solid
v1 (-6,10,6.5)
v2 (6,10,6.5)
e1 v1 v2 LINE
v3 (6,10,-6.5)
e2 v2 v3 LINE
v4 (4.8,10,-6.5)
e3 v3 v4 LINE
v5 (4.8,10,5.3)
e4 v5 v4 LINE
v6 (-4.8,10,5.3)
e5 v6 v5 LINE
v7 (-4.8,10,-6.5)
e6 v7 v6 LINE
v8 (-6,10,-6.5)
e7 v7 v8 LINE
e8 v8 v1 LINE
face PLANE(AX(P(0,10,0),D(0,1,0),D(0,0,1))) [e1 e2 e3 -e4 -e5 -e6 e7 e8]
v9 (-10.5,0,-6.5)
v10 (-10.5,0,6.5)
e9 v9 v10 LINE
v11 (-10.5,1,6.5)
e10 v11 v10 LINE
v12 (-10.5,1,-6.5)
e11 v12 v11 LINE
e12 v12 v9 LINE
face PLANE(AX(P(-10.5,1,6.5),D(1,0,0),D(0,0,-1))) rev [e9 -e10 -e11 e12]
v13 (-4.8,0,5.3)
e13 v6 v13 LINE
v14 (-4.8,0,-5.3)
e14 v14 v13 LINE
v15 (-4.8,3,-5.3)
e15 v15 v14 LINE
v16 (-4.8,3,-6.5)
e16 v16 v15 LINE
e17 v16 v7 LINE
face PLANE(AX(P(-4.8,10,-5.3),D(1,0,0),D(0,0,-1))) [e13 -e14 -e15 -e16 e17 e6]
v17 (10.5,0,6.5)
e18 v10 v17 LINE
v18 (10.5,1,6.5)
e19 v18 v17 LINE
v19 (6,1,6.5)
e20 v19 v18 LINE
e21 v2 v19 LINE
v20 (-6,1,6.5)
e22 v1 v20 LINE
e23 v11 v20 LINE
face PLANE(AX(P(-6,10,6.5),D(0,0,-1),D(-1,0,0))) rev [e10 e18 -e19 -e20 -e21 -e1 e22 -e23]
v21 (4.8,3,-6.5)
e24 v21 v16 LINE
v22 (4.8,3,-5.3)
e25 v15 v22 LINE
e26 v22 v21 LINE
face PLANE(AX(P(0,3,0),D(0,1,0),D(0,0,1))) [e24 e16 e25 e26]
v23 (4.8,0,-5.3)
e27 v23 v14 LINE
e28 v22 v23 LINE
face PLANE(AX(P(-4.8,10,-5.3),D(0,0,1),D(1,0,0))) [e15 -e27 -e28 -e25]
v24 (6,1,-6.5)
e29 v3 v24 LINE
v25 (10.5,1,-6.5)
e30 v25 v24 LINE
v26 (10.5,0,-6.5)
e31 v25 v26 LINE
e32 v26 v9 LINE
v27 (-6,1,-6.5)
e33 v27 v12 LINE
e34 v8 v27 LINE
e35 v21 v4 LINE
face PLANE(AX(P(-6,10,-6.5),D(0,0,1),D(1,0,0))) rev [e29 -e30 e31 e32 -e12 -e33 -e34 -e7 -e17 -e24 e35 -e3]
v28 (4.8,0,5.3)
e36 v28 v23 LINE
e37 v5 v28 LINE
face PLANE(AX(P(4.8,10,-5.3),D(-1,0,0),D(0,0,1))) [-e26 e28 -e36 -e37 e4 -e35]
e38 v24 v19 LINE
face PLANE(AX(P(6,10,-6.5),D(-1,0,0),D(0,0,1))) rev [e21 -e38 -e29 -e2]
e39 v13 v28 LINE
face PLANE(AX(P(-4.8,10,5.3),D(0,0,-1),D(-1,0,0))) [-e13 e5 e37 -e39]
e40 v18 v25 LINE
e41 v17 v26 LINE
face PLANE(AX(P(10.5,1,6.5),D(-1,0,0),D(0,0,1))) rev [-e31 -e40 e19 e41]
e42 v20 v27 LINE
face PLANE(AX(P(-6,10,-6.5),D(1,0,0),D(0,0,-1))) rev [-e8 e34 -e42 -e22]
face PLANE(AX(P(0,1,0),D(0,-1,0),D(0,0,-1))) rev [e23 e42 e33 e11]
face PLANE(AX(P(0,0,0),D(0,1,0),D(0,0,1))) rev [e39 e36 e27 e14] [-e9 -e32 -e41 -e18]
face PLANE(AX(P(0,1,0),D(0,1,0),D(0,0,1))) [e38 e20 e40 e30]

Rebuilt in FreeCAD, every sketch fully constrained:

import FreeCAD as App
import Part
import Sketcher
from FreeCAD import Vector
Q = App.Units.Quantity


def add_polygon(sketch, points):
    """Adds a closed chain of lines whose ends are joined by coincident constraints."""
    first, n = sketch.GeometryCount, len(points)
    for a, b in zip(points, points[1:] + points[:1]):
        sketch.addGeometry(Part.LineSegment(App.Vector(*a, 0), App.Vector(*b, 0)), False)
    for i in range(n):
        sketch.addConstraint(Sketcher.Constraint("Coincident", first + i, 2, first + (i + 1) % n, 1))

doc = App.newDocument("Part")
body = doc.addObject("PartDesign::Body", "Body")

sketch1 = body.newObject("Sketcher::SketchObject", "Sketch")
sketch1.AttachmentSupport = (doc.getObject("XZ_Plane"), [""])
sketch1.MapMode = "FlatFace"
add_polygon(sketch1, [(-6, -6), (-6, 6), (6, 6), (6, -6)])
add_polygon(sketch1, [(5, 5), (-5, 5), (-5, -5), (5, -5)])
sketch1.addConstraint([
    Sketcher.Constraint("Vertical", 0),
    Sketcher.Constraint("Horizontal", 1),
    Sketcher.Constraint("Vertical", 2),
    Sketcher.Constraint("Horizontal", 3),
    Sketcher.Constraint("Horizontal", 4),
    Sketcher.Constraint("Vertical", 5),
    Sketcher.Constraint("Horizontal", 6),
    Sketcher.Constraint("Vertical", 7),
    Sketcher.Constraint("Symmetric", 0, 2, 2, 2, -1, 1),
    Sketcher.Constraint("Symmetric", 4, 2, 6, 2, -1, 1),
    Sketcher.Constraint("DistanceX", 1, 1, 1, 2, Q("12 mm")),
    Sketcher.Constraint("DistanceY", 0, 1, 0, 2, Q("13 mm")),
    Sketcher.Constraint("DistanceX", 4, 2, 4, 1, Q("9.6 mm")),
    Sketcher.Constraint("DistanceY", 5, 2, 5, 1, Q("10.6 mm")),
])
pad1 = body.newObject("PartDesign::Pad", "Pad")
pad1.Profile = sketch1
pad1.Length = 10
pad1.Reversed = True

sketch2 = body.newObject("Sketcher::SketchObject", "Sketch001")
sketch2.AttachmentSupport = (doc.getObject("XZ_Plane"), [""])
sketch2.MapMode = "FlatFace"
add_polygon(sketch2, [(-10.5, -6.5), (-10.5, 6.5), (-6, 6.5), (-6, -6.5)])
add_polygon(sketch2, [(6, -6.5), (6, 6.5), (10.5, 6.5), (10.5, -6.5)])
sketch2.addConstraint([
    Sketcher.Constraint("Vertical", 0),
    Sketcher.Constraint("Horizontal", 1),
    Sketcher.Constraint("Vertical", 2),
    Sketcher.Constraint("Horizontal", 3),
    Sketcher.Constraint("Vertical", 4),
    Sketcher.Constraint("Horizontal", 5),
    Sketcher.Constraint("Vertical", 6),
    Sketcher.Constraint("Horizontal", 7),
    Sketcher.Constraint("Symmetric", 2, 2, 4, 2, -1, 1),
    Sketcher.Constraint("Symmetric", 0, 2, 6, 2, -1, 1),
    Sketcher.Constraint("Horizontal", 1, 2, 4, 2),
    Sketcher.Constraint("DistanceY", 0, 1, 0, 2, Q("13 mm")),
    Sketcher.Constraint("DistanceX", 1, 1, 1, 2, Q("4.5 mm")),
    Sketcher.Constraint("DistanceX", 1, 2, -1, 1, Q("6 mm")),
])
pad2 = body.newObject("PartDesign::Pad", "Pad001")
pad2.Profile = sketch2
pad2.Length = 1
pad2.Reversed = True

sketch3 = body.newObject("Sketcher::SketchObject", "Sketch002")
sketch3.AttachmentSupport = (doc.getObject("XZ_Plane"), [""])
sketch3.MapMode = "FlatFace"
sketch3.AttachmentOffset = App.Placement(Vector(0, 0, -10), App.Rotation())
add_polygon(sketch3, [(-4.8, -6.5), (-4.8, -5.3), (4.8, -5.3), (4.8, -6.5)])
sketch3.addConstraint([
    Sketcher.Constraint("Vertical", 0),
    Sketcher.Constraint("Horizontal", 1),
    Sketcher.Constraint("Vertical", 2),
    Sketcher.Constraint("Horizontal", 3),
    Sketcher.Constraint("DistanceX", 1, 1, 1, 2, Q("9.6 mm")),
    Sketcher.Constraint("DistanceY", 0, 1, 0, 2, Q("1.2 mm")),
    Sketcher.Constraint("DistanceX", 0, 2, -1, 1, Q("4.8 mm")),
    Sketcher.Constraint("DistanceY", 0, 2, -1, 1, Q("5.3 mm")),
])
pocket1 = body.newObject("PartDesign::Pocket", "Pocket")
pocket1.Profile = sketch3
pocket1.Length = 7
pocket1.Reversed = True

doc.recompute()
